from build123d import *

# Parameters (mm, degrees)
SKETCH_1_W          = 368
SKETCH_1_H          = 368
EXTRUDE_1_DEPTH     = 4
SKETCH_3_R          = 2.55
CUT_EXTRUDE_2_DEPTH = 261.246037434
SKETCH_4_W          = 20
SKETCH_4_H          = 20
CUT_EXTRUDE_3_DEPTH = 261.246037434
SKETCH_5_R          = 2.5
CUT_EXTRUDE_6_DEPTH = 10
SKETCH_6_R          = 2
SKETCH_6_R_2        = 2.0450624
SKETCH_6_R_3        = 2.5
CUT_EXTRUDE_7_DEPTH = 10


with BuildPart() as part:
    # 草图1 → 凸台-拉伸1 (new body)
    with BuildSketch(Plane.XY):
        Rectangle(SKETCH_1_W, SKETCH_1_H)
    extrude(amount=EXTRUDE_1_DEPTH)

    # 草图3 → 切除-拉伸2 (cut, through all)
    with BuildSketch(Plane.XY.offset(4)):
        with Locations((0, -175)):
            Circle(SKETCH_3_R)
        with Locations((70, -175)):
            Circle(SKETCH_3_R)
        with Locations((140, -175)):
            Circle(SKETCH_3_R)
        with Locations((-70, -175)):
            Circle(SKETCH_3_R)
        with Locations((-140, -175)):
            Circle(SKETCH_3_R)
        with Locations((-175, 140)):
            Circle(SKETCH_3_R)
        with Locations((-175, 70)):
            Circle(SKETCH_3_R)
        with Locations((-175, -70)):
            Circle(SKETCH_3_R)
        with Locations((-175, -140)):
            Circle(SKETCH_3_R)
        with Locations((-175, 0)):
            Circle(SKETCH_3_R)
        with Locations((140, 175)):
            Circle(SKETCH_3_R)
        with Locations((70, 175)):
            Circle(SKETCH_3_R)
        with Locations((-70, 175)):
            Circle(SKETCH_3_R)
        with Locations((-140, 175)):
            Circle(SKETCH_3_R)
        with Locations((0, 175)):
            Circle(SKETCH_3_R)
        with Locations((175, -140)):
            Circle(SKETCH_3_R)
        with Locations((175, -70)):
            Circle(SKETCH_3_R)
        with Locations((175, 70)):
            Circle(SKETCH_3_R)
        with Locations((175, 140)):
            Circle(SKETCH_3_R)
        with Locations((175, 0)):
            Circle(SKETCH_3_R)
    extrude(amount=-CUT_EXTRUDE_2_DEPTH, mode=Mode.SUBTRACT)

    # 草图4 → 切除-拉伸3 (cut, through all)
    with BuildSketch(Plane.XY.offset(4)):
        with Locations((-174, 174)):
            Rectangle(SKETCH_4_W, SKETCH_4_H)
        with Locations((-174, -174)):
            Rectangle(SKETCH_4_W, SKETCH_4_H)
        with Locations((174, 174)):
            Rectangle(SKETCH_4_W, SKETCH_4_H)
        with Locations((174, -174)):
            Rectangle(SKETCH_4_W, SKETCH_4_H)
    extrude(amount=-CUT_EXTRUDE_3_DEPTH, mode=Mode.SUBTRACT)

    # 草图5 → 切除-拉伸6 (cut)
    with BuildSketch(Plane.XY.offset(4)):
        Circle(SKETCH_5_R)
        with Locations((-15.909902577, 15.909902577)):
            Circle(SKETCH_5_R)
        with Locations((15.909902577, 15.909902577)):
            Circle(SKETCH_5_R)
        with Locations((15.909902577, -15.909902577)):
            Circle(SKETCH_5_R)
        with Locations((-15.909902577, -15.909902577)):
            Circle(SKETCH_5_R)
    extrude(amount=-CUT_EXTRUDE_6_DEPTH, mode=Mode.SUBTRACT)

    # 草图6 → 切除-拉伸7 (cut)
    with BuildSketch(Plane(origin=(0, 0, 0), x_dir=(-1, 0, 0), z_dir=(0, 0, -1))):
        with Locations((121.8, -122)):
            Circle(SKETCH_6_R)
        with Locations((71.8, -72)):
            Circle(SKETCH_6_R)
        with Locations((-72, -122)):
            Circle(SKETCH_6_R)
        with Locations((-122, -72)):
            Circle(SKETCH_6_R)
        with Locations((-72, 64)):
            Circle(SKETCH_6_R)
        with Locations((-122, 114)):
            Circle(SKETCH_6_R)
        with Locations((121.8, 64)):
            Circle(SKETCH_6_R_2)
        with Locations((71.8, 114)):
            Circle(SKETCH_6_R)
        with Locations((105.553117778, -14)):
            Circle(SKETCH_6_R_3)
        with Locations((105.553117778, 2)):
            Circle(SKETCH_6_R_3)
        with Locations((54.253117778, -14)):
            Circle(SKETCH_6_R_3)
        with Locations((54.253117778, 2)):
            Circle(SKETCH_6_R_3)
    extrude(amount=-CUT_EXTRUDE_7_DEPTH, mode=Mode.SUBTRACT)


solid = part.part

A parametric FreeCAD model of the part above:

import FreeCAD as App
import Part
import Sketcher
Q = App.Units.Quantity


def add_polygon(sketch, points):
    """Adds a closed chain of lines whose ends are joined by coincident constraints."""
    first, n = sketch.GeometryCount, len(points)
    for a, b in zip(points, points[1:] + points[:1]):
        sketch.addGeometry(Part.LineSegment(App.Vector(*a, 0), App.Vector(*b, 0)), False)
    for i in range(n):
        sketch.addConstraint(Sketcher.Constraint("Coincident", first + i, 2, first + (i + 1) % n, 1))

doc = App.newDocument("Part")
params = doc.addObject("Spreadsheet::Sheet", "Params")
for row, (alias, value) in enumerate([
    ("sketch1_width", "368 mm"),
    ("pad1_length", "4 mm"),
    ("sketch2_diameter", "5.1 mm"),
    ("sketch3_width", "20 mm"),
    ("sketch4_diameter", "5 mm"),
    ("pocket3_length", "10 mm"),
    ("sketch5_diameter", "4 mm"),
    ("sketch5_diameter2", "5 mm"),
    ("pocket4_length", "10 mm"),
], start=1):
    params.set(f"A{row}", alias)
    params.set(f"B{row}", "=" + value)
    params.setAlias(f"B{row}", alias)

body = doc.addObject("PartDesign::Body", "Body")

# Sketch on XY plane
sketch1 = body.newObject("Sketcher::SketchObject", "Sketch")
sketch1.AttachmentSupport = (doc.getObject("XY_Plane"), [""])
sketch1.MapMode = "FlatFace"
add_polygon(sketch1, [(-184, 184), (-184, -184), (184, -184), (184, 184)])  # lines 0-3
sketch1.addConstraint([
    Sketcher.Constraint("Vertical", 0),
    Sketcher.Constraint("Horizontal", 1),
    Sketcher.Constraint("Vertical", 2),
    Sketcher.Constraint("Horizontal", 3),
    Sketcher.Constraint("Symmetric", 0, 2, 2, 2, -1, 1),
    Sketcher.Constraint("Equal", 3, 0),
    Sketcher.Constraint("DistanceX", 1, 1, 1, 2, Q("368 mm")),
])
sketch1.setExpression("Constraints[10]", "Params.sketch1_width")
pad1 = body.newObject("PartDesign::Pad", "Pad")
pad1.Profile = sketch1
pad1.setExpression("Length", "Params.pad1_length")

# Sketch on XY plane
sketch2 = body.newObject("Sketcher::SketchObject", "Sketch001")
sketch2.AttachmentSupport = (doc.getObject("XY_Plane"), [""])
sketch2.MapMode = "FlatFace"
sketch2.AttachmentOffset = App.Placement(App.Vector(0, 0, 4), App.Rotation())
sketch2.addGeometry([
    Part.Circle(App.Vector(0, -175, 0), App.Vector(0, 0, 1), 2.5),  # 0
    Part.Circle(App.Vector(70, -175, 0), App.Vector(0, 0, 1), 2.5),  # 1
    Part.Circle(App.Vector(140, -175, 0), App.Vector(0, 0, 1), 2.5),  # 2
    Part.Circle(App.Vector(-70, -175, 0), App.Vector(0, 0, 1), 2.5),  # 3
    Part.Circle(App.Vector(-140, -175, 0), App.Vector(0, 0, 1), 2.5),  # 4
    Part.Circle(App.Vector(-175, 140, 0), App.Vector(0, 0, 1), 2.5),  # 5
    Part.Circle(App.Vector(-175, 70, 0), App.Vector(0, 0, 1), 2.5),  # 6
    Part.Circle(App.Vector(-175, -70, 0), App.Vector(0, 0, 1), 2.5),  # 7
    Part.Circle(App.Vector(-175, -140, 0), App.Vector(0, 0, 1), 2.5),  # 8
    Part.Circle(App.Vector(-175, 0, 0), App.Vector(0, 0, 1), 2.5),  # 9
    Part.Circle(App.Vector(140, 175, 0), App.Vector(0, 0, 1), 2.5),  # 10
    Part.Circle(App.Vector(70, 175, 0), App.Vector(0, 0, 1), 2.5),  # 11
    Part.Circle(App.Vector(-70, 175, 0), App.Vector(0, 0, 1), 2.5),  # 12
    Part.Circle(App.Vector(-140, 175, 0), App.Vector(0, 0, 1), 2.5),  # 13
    Part.Circle(App.Vector(0, 175, 0), App.Vector(0, 0, 1), 2.5),  # 14
    Part.Circle(App.Vector(175, -140, 0), App.Vector(0, 0, 1), 2.5),  # 15
    Part.Circle(App.Vector(175, -70, 0), App.Vector(0, 0, 1), 2.5),  # 16
    Part.Circle(App.Vector(175, 70, 0), App.Vector(0, 0, 1), 2.5),  # 17
    Part.Circle(App.Vector(175, 140, 0), App.Vector(0, 0, 1), 2.5),  # 18
    Part.Circle(App.Vector(175, 0, 0), App.Vector(0, 0, 1), 2.5),  # 19
], False)
sketch2.addConstraint([
    Sketcher.Constraint("Equal", 0, 1),
    Sketcher.Constraint("Equal", 1, 2),
    Sketcher.Constraint("Equal", 2, 3),
    Sketcher.Constraint("Equal", 3, 4),
    Sketcher.Constraint("Equal", 4, 5),
    Sketcher.Constraint("Equal", 5, 6),
    Sketcher.Constraint("Equal", 6, 7),
    Sketcher.Constraint("Equal", 7, 8),
    Sketcher.Constraint("Equal", 8, 9),
    Sketcher.Constraint("Equal", 9, 10),
    Sketcher.Constraint("Equal", 10, 11),
    Sketcher.Constraint("Equal", 11, 12),
    Sketcher.Constraint("Equal", 12, 13),
    Sketcher.Constraint("Equal", 13, 14),
    Sketcher.Constraint("Equal", 14, 15),
    Sketcher.Constraint("Equal", 15, 16),
    Sketcher.Constraint("Equal", 16, 17),
    Sketcher.Constraint("Equal", 17, 18),
    Sketcher.Constraint("Equal", 18, 19),
    Sketcher.Constraint("Symmetric", 4, 3, 10, 3, -1, 1),
    Sketcher.Constraint("Symmetric", 3, 3, 11, 3, -1, 1),
    Sketcher.Constraint("Symmetric", 1, 3, 12, 3, -1, 1),
    Sketcher.Constraint("Symmetric", 2, 3, 13, 3, -1, 1),
    Sketcher.Constraint("Symmetric", 0, 3, 14, 3, -1, 1),
    Sketcher.Constraint("Symmetric", 5, 3, 15, 3, -1, 1),
    Sketcher.Constraint("Symmetric", 6, 3, 16, 3, -1, 1),
    Sketcher.Constraint("Symmetric", 7, 3, 17, 3, -1, 1),
    Sketcher.Constraint("Symmetric", 8, 3, 18, 3, -1, 1),
    Sketcher.Constraint("Symmetric", 9, 3, 19, 3, -1, 1),
    Sketcher.Constraint("Symmetric", 1, 3, 3, 3, -2),
    Sketcher.Constraint("Symmetric", 2, 3, 4, 3, -2),
    Sketcher.Constraint("Symmetric", 8, 3, 15, 3, -2),
    Sketcher.Constraint("Symmetric", 7, 3, 16, 3, -2),
    Sketcher.Constraint("PointOnObject", 0, 3, -2),
    Sketcher.Constraint("PointOnObject", 9, 3, -1),
    Sketcher.Constraint("Horizontal", 0, 3, 1, 3),
    Sketcher.Constraint("Horizontal", 1, 3, 2, 3),
    Sketcher.Constraint("Vertical", 5, 3, 6, 3),
    Sketcher.Constraint("Vertical", 8, 3, 9, 3),
    Sketcher.Constraint("Diameter", 0, Q("5.1 mm")),
    Sketcher.Constraint("DistanceY", 0, 3, -1, 1, Q("175 mm")),
    Sketcher.Constraint("DistanceX", -1, 1, 1, 3, Q("70 mm")),
    Sketcher.Constraint("DistanceX", -1, 1, 2, 3, Q("140 mm")),
    Sketcher.Constraint("DistanceX", 5, 3, -1, 1, Q("175 mm")),
    Sketcher.Constraint("DistanceY", -1, 1, 5, 3, Q("140 mm")),
    Sketcher.Constraint("DistanceY", -1, 1, 6, 3, Q("70 mm")),
])
sketch2.setExpression("Constraints[39]", "Params.sketch2_diameter")
pocket1 = body.newObject("PartDesign::Pocket", "Pocket")
pocket1.Profile = sketch2
pocket1.Type = "ThroughAll"

# Sketch on XY plane
sketch3 = body.newObject("Sketcher::SketchObject", "Sketch002")
sketch3.AttachmentSupport = (doc.getObject("XY_Plane"), [""])
sketch3.MapMode = "FlatFace"
sketch3.AttachmentOffset = App.Placement(App.Vector(0, 0, 4), App.Rotation())
add_polygon(sketch3, [(-184, 184), (-184, 164), (-164, 164), (-164, 184)])  # lines 0-3
add_polygon(sketch3, [(-184, -164), (-184, -184), (-164, -184), (-164, -164)])  # lines 4-7
add_polygon(sketch3, [(164, 184), (164, 164), (184, 164), (184, 184)])  # lines 8-11
add_polygon(sketch3, [(164, -164), (164, -184), (184, -184), (184, -164)])  # lines 12-15
sketch3.addConstraint([
    Sketcher.Constraint("Vertical", 0),
    Sketcher.Constraint("Horizontal", 1),
    Sketcher.Constraint("Vertical", 2),
    Sketcher.Constraint("Horizontal", 3),
    Sketcher.Constraint("Vertical", 4),
    Sketcher.Constraint("Horizontal", 5),
    Sketcher.Constraint("Vertical", 6),
    Sketcher.Constraint("Horizontal", 7),
    Sketcher.Constraint("Vertical", 8),
    Sketcher.Constraint("Horizontal", 9),
    Sketcher.Constraint("Vertical", 10),
    Sketcher.Constraint("Horizontal", 11),
    Sketcher.Constraint("Vertical", 12),
    Sketcher.Constraint("Horizontal", 13),
    Sketcher.Constraint("Vertical", 14),
    Sketcher.Constraint("Horizontal", 15),
    Sketcher.Constraint("Symmetric", 6, 2, 8, 2, -1, 1),
    Sketcher.Constraint("Symmetric", 4, 2, 10, 2, -1, 1),
    Sketcher.Constraint("Symmetric", 2, 2, 12, 2, -1, 1),
    Sketcher.Constraint("Symmetric", 0, 2, 14, 2, -1, 1),
    Sketcher.Constraint("Symmetric", 1, 2, 8, 2, -2),
    Sketcher.Constraint("Symmetric", 3, 2, 10, 2, -2),
    Sketcher.Constraint("Equal", 15, 0),
    Sketcher.Constraint("DistanceX", 1, 1, 1, 2, Q("20 mm")),
    Sketcher.Constraint("DistanceX", 0, 2, -1, 1, Q("184 mm")),
    Sketcher.Constraint("DistanceY", -1, 1, 0, 2, Q("164 mm")),
])
sketch3.setExpression("Constraints[39]", "Params.sketch3_width")
pocket2 = body.newObject("PartDesign::Pocket", "Pocket001")
pocket2.Profile = sketch3
pocket2.Type = "ThroughAll"

# Sketch on XY plane
sketch4 = body.newObject("Sketcher::SketchObject", "Sketch003")
sketch4.AttachmentSupport = (doc.getObject("XY_Plane"), [""])
sketch4.MapMode = "FlatFace"
sketch4.AttachmentOffset = App.Placement(App.Vector(0, 0, 4), App.Rotation())
sketch4.addGeometry([
    Part.Circle(App.Vector(0, 0, 0), App.Vector(0, 0, 1), 2.5),  # 0
    Part.Circle(App.Vector(-15.9, 15.9, 0), App.Vector(0, 0, 1), 2.5),  # 1
    Part.Circle(App.Vector(15.9, 15.9, 0), App.Vector(0, 0, 1), 2.5),  # 2
    Part.Circle(App.Vector(15.9, -15.9, 0), App.Vector(0, 0, 1), 2.5),  # 3
    Part.Circle(App.Vector(-15.9, -15.9, 0), App.Vector(0, 0, 1), 2.5),  # 4
], False)
sketch4.addConstraint([
    Sketcher.Constraint("Coincident", 0, 3, -1, 1),
    Sketcher.Constraint("Equal", 0, 1),
    Sketcher.Constraint("Equal", 1, 2),
    Sketcher.Constraint("Equal", 2, 3),
    Sketcher.Constraint("Equal", 3, 4),
    Sketcher.Constraint("Symmetric", 1, 3, 3, 3, -1, 1),
    Sketcher.Constraint("Symmetric", 2, 3, 4, 3, -1, 1),
    Sketcher.Constraint("Symmetric", 1, 3, 2, 3, -2),
    Sketcher.Constraint("Diameter", 0, Q("5 mm")),
    Sketcher.Constraint("DistanceX", 1, 3, -1, 1, Q("15.909903 mm")),
    Sketcher.Constraint("DistanceY", -1, 1, 1, 3, Q("15.909903 mm")),
])
sketch4.setExpression("Constraints[8]", "Params.sketch4_diameter")
pocket3 = body.newObject("PartDesign::Pocket", "Pocket002")
pocket3.Profile = sketch4
pocket3.setExpression("Length", "Params.pocket3_length")

# Sketch on XY plane
sketch5 = body.newObject("Sketcher::SketchObject", "Sketch004")
sketch5.AttachmentSupport = (doc.getObject("XY_Plane"), [""])
sketch5.MapMode = "FlatFace"
sketch5.addGeometry([
    Part.Circle(App.Vector(-121.8, -122, 0), App.Vector(0, 0, 1), 2),  # 0
    Part.Circle(App.Vector(-71.8, -72, 0), App.Vector(0, 0, 1), 2),  # 1
    Part.Circle(App.Vector(72, -122, 0), App.Vector(0, 0, 1), 2),  # 2
    Part.Circle(App.Vector(122, -72, 0), App.Vector(0, 0, 1), 2),  # 3
    Part.Circle(App.Vector(72, 64, 0), App.Vector(0, 0, 1), 2),  # 4
    Part.Circle(App.Vector(122, 114, 0), App.Vector(0, 0, 1), 2),  # 5
    Part.Circle(App.Vector(-121.8, 64, 0), App.Vector(0, 0, 1), 2),  # 6
    Part.Circle(App.Vector(-71.8, 114, 0), App.Vector(0, 0, 1), 2),  # 7
    Part.Circle(App.Vector(-105.6, -14, 0), App.Vector(0, 0, 1), 2.5),  # 8
    Part.Circle(App.Vector(-105.6, 2, 0), App.Vector(0, 0, 1), 2.5),  # 9
    Part.Circle(App.Vector(-54.3, -14, 0), App.Vector(0, 0, 1), 2.5),  # 10
    Part.Circle(App.Vector(-54.3, 2, 0), App.Vector(0, 0, 1), 2.5),  # 11
], False)
sketch5.addConstraint([
    Sketcher.Constraint("Equal", 0, 1),
    Sketcher.Constraint("Equal", 1, 2),
    Sketcher.Constraint("Equal", 2, 3),
    Sketcher.Constraint("Equal", 3, 4),
    Sketcher.Constraint("Equal", 4, 5),
    Sketcher.Constraint("Equal", 5, 7),
    Sketcher.Constraint("Equal", 8, 9),
    Sketcher.Constraint("Equal", 9, 10),
    Sketcher.Constraint("Equal", 10, 11),
    Sketcher.Constraint("Horizontal", 0, 3, 2, 3),
    Sketcher.Constraint("Horizontal", 1, 3, 3, 3),
    Sketcher.Constraint("Horizontal", 4, 3, 6, 3),
    Sketcher.Constraint("Horizontal", 5, 3, 7, 3),
    Sketcher.Constraint("Horizontal", 8, 3, 10, 3),
    Sketcher.Constraint("Horizontal", 9, 3, 11, 3),
    Sketcher.Constraint("Vertical", 2, 3, 4, 3),
    Sketcher.Constraint("Vertical", 3, 3, 5, 3),
    Sketcher.Constraint("Vertical", 0, 3, 6, 3),
    Sketcher.Constraint("Vertical", 1, 3, 7, 3),
    Sketcher.Constraint("Vertical", 8, 3, 9, 3),
    Sketcher.Constraint("Vertical", 10, 3, 11, 3),
    Sketcher.Constraint("Diameter", 0, Q("4 mm")),
    Sketcher.Constraint("Diameter", 8, Q("5 mm")),
    Sketcher.Constraint("DistanceY", 0, 3, -1, 1, Q("122 mm")),
    Sketcher.Constraint("DistanceY", 1, 3, -1, 1, Q("72 mm")),
    Sketcher.Constraint("DistanceX", -1, 1, 2, 3, Q("72 mm")),
    Sketcher.Constraint("DistanceX", -1, 1, 3, 3, Q("122 mm")),
    Sketcher.Constraint("DistanceY", -1, 1, 4, 3, Q("64 mm")),
    Sketcher.Constraint("DistanceY", -1, 1, 5, 3, Q("114 mm")),
    Sketcher.Constraint("DistanceY", 8, 3, -1, 1, Q("14 mm")),
    Sketcher.Constraint("DistanceY", -1, 1, 9, 3, Q("2 mm")),
    Sketcher.Constraint("DistanceX", 0, 3, 1, 3, Q("50 mm")),
    Sketcher.Constraint("DistanceX", 0, 3, -1, 1, Q("121.8 mm")),
    Sketcher.Constraint("DistanceX", 8, 3, 10, 3, Q("51.3 mm")),
    Sketcher.Constraint("Diameter", 6, Q("4.090125 mm")),
    Sketcher.Constraint("DistanceX", 8, 3, -1, 1, Q("105.553118 mm")),
])
sketch5.setExpression("Constraints[21]", "Params.sketch5_diameter")
sketch5.setExpression("Constraints[22]", "Params.sketch5_diameter2")
pocket4 = body.newObject("PartDesign::Pocket", "Pocket003")
pocket4.Profile = sketch5
pocket4.setExpression("Length", "Params.pocket4_length")
pocket4.Reversed = True

doc.recompute()
